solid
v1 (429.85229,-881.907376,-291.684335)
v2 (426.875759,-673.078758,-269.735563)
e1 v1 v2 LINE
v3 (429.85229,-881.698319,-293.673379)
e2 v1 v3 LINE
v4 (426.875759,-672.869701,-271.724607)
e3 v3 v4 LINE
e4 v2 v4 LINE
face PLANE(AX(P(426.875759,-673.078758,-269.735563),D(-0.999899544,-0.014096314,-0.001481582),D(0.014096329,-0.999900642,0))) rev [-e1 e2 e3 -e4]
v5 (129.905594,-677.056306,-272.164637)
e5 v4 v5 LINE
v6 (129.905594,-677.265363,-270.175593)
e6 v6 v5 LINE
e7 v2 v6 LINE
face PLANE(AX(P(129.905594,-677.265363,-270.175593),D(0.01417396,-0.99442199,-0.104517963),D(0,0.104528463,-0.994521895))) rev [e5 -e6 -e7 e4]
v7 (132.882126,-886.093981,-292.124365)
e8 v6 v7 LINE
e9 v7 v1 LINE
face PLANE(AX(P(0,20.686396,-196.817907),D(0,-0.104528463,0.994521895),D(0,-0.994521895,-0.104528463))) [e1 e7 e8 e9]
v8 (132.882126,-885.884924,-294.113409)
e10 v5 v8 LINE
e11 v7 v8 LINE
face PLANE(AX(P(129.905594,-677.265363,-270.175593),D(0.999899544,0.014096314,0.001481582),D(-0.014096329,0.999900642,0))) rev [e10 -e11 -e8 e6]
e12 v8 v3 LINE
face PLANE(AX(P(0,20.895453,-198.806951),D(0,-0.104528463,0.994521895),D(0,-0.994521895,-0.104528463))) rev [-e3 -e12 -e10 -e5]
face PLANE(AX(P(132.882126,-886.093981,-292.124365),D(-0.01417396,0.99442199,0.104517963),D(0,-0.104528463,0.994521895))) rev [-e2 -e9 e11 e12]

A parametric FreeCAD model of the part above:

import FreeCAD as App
import Part
import Sketcher
from FreeCAD import Vector


def add_polygon(sketch, points):
    """Adds a closed chain of lines whose ends are joined by coincident constraints."""
    first, n = sketch.GeometryCount, len(points)
    for a, b in zip(points, points[1:] + points[:1]):
        sketch.addGeometry(Part.LineSegment(App.Vector(*a, 0), App.Vector(*b, 0)), False)
    for i in range(n):
        sketch.addConstraint(Sketcher.Constraint("Coincident", first + i, 2, first + (i + 1) % n, 1))

doc = App.newDocument("Part")
body = doc.addObject("PartDesign::Body", "Body")

# Sketch on an angled plane
sketch1 = doc.addObject("Sketcher::SketchObject", "Sketch")
body.addObject(sketch1)
sketch1.Placement = App.Placement(Vector(0, 20.895453, -198.806951), App.Rotation(Vector(1, 0, 0), Vector(0, 0.994521895, 0.104528463), Vector(0, -0.104528463, 0.994521895), "ZXY"))
add_polygon(sketch1, [(427, -698), (130, -702), (133, -912), (430, -908)])  # lines 0-3
sketch1.addConstraint([
    Sketcher.Constraint("Perpendicular", 0, 1),
    Sketcher.Constraint("Perpendicular", 1, 2),
    Sketcher.Constraint("Perpendicular", 2, 3),
    Sketcher.Constraint("Distance", 0, 297.0),
    Sketcher.Constraint("Distance", 1, 210.0),
    Sketcher.Constraint("DistanceY", 0, 2, -1, 1, 701.796272),
    Sketcher.Constraint("DistanceX", -1, 1, 2, 2, 429.85229),
    Sketcher.Constraint("DistanceY", 2, 2, -1, 1, 907.56551),
])
pad1 = doc.addObject("PartDesign::Pad", "Pad")
body.addObject(pad1)
pad1.Profile = sketch1
pad1.Length = 2

doc.recompute()
